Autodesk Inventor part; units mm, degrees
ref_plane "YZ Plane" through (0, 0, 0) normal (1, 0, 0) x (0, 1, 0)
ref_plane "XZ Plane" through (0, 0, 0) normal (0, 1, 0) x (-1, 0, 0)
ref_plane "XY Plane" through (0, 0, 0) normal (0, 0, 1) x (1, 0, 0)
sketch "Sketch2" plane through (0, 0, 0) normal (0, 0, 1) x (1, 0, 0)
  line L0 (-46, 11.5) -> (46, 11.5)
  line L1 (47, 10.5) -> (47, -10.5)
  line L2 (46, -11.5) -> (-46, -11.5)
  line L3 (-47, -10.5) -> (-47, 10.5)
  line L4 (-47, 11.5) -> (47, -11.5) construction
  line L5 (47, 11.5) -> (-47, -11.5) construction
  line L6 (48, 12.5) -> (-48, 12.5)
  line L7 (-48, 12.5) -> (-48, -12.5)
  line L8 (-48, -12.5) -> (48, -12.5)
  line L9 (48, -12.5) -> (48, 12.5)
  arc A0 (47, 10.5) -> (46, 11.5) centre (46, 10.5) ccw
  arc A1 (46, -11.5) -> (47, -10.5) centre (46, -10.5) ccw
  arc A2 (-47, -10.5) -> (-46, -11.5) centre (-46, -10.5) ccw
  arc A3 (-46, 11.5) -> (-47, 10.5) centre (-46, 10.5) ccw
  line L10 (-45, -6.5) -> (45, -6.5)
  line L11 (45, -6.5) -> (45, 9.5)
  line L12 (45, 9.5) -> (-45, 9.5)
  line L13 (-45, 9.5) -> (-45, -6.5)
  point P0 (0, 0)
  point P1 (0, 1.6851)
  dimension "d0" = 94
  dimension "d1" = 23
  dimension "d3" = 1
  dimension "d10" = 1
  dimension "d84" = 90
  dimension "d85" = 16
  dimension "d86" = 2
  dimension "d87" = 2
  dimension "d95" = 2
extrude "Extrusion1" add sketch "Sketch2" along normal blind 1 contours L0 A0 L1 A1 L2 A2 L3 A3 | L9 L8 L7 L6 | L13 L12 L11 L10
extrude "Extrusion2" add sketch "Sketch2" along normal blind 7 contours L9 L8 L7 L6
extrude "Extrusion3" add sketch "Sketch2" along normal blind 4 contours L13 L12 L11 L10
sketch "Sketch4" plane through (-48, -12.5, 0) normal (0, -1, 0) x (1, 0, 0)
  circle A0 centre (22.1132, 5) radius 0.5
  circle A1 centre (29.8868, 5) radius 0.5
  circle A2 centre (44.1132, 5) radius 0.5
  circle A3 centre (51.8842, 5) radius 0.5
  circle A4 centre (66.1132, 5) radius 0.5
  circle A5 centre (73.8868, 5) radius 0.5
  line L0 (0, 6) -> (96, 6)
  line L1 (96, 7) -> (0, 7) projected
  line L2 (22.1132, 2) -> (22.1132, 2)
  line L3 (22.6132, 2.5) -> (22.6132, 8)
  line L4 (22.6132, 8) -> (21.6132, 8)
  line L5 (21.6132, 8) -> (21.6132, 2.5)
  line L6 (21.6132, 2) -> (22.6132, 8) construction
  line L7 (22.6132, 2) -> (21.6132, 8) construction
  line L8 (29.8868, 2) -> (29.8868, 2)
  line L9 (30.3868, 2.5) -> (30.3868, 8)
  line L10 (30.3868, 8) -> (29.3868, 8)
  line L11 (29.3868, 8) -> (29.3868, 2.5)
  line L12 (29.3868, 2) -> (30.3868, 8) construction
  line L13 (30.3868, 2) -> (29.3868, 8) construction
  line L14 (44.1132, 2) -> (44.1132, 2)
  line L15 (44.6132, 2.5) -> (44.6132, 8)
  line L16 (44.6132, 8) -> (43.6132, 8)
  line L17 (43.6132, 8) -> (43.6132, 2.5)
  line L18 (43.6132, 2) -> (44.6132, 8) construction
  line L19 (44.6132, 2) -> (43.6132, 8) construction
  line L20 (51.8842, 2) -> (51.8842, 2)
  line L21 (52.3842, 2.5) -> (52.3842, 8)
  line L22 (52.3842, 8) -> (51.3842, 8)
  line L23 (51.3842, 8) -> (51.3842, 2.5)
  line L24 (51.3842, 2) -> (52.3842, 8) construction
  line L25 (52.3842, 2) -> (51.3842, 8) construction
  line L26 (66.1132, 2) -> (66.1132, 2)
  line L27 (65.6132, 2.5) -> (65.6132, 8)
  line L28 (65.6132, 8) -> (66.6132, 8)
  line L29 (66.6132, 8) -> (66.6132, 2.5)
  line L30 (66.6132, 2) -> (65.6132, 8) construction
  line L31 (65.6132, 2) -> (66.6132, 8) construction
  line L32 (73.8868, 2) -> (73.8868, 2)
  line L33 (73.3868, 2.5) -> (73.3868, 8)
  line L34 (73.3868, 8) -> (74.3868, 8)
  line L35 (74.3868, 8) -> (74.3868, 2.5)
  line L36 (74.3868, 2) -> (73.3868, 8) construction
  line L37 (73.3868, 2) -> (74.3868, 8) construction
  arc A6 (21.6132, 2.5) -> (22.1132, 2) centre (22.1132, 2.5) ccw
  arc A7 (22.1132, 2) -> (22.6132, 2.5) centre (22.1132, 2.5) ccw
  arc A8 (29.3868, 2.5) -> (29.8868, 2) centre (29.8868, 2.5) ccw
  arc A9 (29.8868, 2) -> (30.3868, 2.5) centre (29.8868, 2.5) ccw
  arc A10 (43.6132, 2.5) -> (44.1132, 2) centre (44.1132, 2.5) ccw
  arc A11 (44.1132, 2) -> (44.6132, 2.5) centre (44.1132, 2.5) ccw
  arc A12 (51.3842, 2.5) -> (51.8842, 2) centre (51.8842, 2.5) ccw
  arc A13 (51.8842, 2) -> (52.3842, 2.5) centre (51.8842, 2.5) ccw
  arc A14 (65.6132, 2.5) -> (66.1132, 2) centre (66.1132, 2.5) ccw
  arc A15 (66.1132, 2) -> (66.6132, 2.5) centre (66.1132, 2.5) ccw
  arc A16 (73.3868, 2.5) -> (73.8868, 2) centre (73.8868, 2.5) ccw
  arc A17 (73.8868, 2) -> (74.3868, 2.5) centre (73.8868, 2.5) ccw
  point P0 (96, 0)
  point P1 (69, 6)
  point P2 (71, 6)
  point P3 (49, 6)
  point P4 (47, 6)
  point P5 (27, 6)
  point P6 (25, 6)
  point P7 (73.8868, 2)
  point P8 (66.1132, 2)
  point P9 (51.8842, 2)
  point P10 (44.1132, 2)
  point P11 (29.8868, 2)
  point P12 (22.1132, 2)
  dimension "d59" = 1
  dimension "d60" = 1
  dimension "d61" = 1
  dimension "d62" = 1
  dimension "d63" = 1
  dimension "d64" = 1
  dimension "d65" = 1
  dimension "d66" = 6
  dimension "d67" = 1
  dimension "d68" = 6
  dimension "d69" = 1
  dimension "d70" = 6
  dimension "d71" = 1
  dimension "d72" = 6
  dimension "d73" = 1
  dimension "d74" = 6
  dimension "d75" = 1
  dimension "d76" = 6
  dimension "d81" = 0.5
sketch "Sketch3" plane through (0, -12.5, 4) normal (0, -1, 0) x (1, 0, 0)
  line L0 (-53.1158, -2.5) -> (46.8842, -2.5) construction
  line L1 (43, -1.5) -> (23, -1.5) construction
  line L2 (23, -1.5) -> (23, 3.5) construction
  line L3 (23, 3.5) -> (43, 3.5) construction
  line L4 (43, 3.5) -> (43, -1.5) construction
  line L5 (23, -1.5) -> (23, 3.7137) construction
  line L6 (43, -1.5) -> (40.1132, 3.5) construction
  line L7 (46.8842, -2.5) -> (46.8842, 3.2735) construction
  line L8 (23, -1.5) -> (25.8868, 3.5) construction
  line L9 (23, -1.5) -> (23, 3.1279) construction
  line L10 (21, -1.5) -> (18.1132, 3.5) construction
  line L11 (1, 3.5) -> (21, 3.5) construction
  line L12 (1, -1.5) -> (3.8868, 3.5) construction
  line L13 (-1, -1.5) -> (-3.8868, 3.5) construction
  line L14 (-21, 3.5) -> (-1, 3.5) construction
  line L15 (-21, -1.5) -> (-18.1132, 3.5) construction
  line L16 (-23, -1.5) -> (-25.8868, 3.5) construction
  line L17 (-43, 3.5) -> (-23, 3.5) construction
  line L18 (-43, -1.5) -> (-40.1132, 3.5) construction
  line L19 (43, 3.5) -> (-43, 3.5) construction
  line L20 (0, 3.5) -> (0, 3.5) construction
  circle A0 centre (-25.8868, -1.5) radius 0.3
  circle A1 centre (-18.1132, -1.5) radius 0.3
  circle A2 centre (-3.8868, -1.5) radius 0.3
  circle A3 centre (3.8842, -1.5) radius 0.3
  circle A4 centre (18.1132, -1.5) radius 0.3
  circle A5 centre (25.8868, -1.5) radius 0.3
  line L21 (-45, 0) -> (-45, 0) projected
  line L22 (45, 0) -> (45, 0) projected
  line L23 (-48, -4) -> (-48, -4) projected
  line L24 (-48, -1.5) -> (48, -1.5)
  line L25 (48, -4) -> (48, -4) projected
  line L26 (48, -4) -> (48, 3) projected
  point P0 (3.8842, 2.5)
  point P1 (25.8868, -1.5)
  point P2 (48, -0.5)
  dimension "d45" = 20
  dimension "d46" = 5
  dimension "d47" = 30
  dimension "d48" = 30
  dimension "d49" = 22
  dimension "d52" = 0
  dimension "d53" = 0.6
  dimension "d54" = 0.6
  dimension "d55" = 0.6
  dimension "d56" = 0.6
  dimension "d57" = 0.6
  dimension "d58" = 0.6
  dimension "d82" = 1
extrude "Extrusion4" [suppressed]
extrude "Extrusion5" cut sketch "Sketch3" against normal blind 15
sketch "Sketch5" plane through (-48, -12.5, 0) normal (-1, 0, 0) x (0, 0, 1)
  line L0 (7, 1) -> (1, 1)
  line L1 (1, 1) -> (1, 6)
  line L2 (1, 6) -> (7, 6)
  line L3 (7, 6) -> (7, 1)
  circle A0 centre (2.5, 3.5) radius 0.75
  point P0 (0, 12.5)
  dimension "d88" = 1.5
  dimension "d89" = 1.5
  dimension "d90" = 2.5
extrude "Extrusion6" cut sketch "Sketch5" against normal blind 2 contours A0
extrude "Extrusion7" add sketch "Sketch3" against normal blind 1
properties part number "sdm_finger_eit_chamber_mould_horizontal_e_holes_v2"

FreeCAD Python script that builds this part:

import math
import FreeCAD as App
import Part
import Sketcher

V = App.Vector

doc = App.newDocument("Part")
body = doc.addObject("PartDesign::Body", "Body")

sketch1 = doc.addObject("Sketcher::SketchObject", "Sketch")
body.addObject(sketch1)
sketch1.AttachmentSupport = (doc.XY_Plane, [""])
sketch1.MapMode = "FlatFace"
sketch1.addGeometry([
    Part.LineSegment(V(48, -12.5, 0), V(48, 12.5, 0)),
    Part.LineSegment(V(48, 12.5, 0), V(-48, 12.5, 0)),
    Part.LineSegment(V(-48, 12.5, 0), V(-48, -12.5, 0)),
    Part.LineSegment(V(-48, -12.5, 0), V(48, -12.5, 0)),
], False)
sketch1.addConstraint([
    Sketcher.Constraint("Coincident", 0, 2, 1, 1),
    Sketcher.Constraint("Coincident", 1, 2, 2, 1),
    Sketcher.Constraint("Coincident", 2, 2, 3, 1),
    Sketcher.Constraint("Coincident", 3, 2, 0, 1),
    Sketcher.Constraint("Vertical", 0),
    Sketcher.Constraint("Horizontal", 1),
    Sketcher.Constraint("Vertical", 2),
    Sketcher.Constraint("Horizontal", 3),
    Sketcher.Constraint("Symmetric", 0, 2, 2, 2, -1, 1),
    Sketcher.Constraint("DistanceX", 1, 2, 1, 1, 96.0),
    Sketcher.Constraint("DistanceY", 0, 1, 0, 2, 25.0),
])
pad1 = doc.addObject("PartDesign::Pad", "Pad")
body.addObject(pad1)
pad1.Profile = sketch1
pad1.Length = 1

sketch2 = doc.addObject("Sketcher::SketchObject", "Sketch001")
body.addObject(sketch2)
sketch2.AttachmentSupport = (doc.XY_Plane, [""])
sketch2.MapMode = "FlatFace"
sketch2.addGeometry([
    Part.LineSegment(V(48, -12.5, 0), V(48, 12.5, 0)),
    Part.LineSegment(V(48, 12.5, 0), V(-48, 12.5, 0)),
    Part.LineSegment(V(-48, 12.5, 0), V(-48, -12.5, 0)),
    Part.LineSegment(V(-48, -12.5, 0), V(48, -12.5, 0)),
    Part.ArcOfCircle(Part.Circle(V(-46, 10.5, 0), V(0, 0, 1), 1), math.radians(90), math.radians(180)),
    Part.LineSegment(V(-46, 11.5, 0), V(46, 11.5, 0)),
    Part.ArcOfCircle(Part.Circle(V(46, 10.5, 0), V(0, 0, 1), 1), math.radians(0), math.radians(90)),
    Part.LineSegment(V(47, 10.5, 0), V(47, -10.5, 0)),
    Part.ArcOfCircle(Part.Circle(V(46, -10.5, 0), V(0, 0, 1), 1), math.radians(-90), math.radians(0)),
    Part.LineSegment(V(46, -11.5, 0), V(-46, -11.5, 0)),
    Part.ArcOfCircle(Part.Circle(V(-46, -10.5, 0), V(0, 0, 1), 1), math.radians(180), math.radians(270)),
    Part.LineSegment(V(-47, -10.5, 0), V(-47, 10.5, 0)),
], False)
sketch2.addConstraint([
    Sketcher.Constraint("Coincident", 0, 2, 1, 1),
    Sketcher.Constraint("Coincident", 1, 2, 2, 1),
    Sketcher.Constraint("Coincident", 2, 2, 3, 1),
    Sketcher.Constraint("Coincident", 3, 2, 0, 1),
    Sketcher.Constraint("Tangent", 4, 1, 5, 1),
    Sketcher.Constraint("Tangent", 5, 2, 6, 2),
    Sketcher.Constraint("Tangent", 6, 1, 7, 1),
    Sketcher.Constraint("Tangent", 7, 2, 8, 2),
    Sketcher.Constraint("Tangent", 8, 1, 9, 1),
    Sketcher.Constraint("Tangent", 9, 2, 10, 2),
    Sketcher.Constraint("Tangent", 10, 1, 11, 1),
    Sketcher.Constraint("Tangent", 11, 2, 4, 2),
    Sketcher.Constraint("Vertical", 0),
    Sketcher.Constraint("Horizontal", 1),
    Sketcher.Constraint("Vertical", 2),
    Sketcher.Constraint("Horizontal", 3),
    Sketcher.Constraint("Horizontal", 5),
    Sketcher.Constraint("Vertical", 7),
    Sketcher.Constraint("Horizontal", 9),
    Sketcher.Constraint("Vertical", 11),
    Sketcher.Constraint("Equal", 4, 6),
    Sketcher.Constraint("Equal", 6, 8),
    Sketcher.Constraint("Equal", 8, 10),
    Sketcher.Constraint("Symmetric", 4, 3, 8, 3, -1, 1),
    Sketcher.Constraint("Symmetric", 0, 2, 2, 2, -1, 1),
    Sketcher.Constraint("Radius", 4, 1.0),
    Sketcher.Constraint("DistanceX", 6, 3, 0, 2, 2.0),
    Sketcher.Constraint("DistanceY", 6, 3, 0, 2, 2.0),
    Sketcher.Constraint("DistanceY", 8, 3, 0, 2, 23.0),
    Sketcher.Constraint("DistanceX", 4, 3, 0, 2, 94.0),
])
pad2 = doc.addObject("PartDesign::Pad", "Pad001")
body.addObject(pad2)
pad2.Profile = sketch2
pad2.Length = 7

sketch3 = doc.addObject("Sketcher::SketchObject", "Sketch002")
body.addObject(sketch3)
sketch3.AttachmentSupport = (doc.XY_Plane, [""])
sketch3.MapMode = "FlatFace"
sketch3.addGeometry([
    Part.LineSegment(V(-45, 9.5, 0), V(-45, -6.5, 0)),
    Part.LineSegment(V(-45, -6.5, 0), V(45, -6.5, 0)),
    Part.LineSegment(V(45, -6.5, 0), V(45, 9.5, 0)),
    Part.LineSegment(V(45, 9.5, 0), V(-45, 9.5, 0)),
], False)
sketch3.addConstraint([
    Sketcher.Constraint("Coincident", 0, 2, 1, 1),
    Sketcher.Constraint("Coincident", 1, 2, 2, 1),
    Sketcher.Constraint("Coincident", 2, 2, 3, 1),
    Sketcher.Constraint("Coincident", 3, 2, 0, 1),
    Sketcher.Constraint("Vertical", 0),
    Sketcher.Constraint("Horizontal", 1),
    Sketcher.Constraint("Vertical", 2),
    Sketcher.Constraint("Horizontal", 3),
    Sketcher.Constraint("DistanceX", 1, 1, 1, 2, 90.0),
    Sketcher.Constraint("DistanceY", 0, 2, 0, 1, 16.0),
    Sketcher.Constraint("DistanceX", 0, 2, -1, 1, 45.0),
    Sketcher.Constraint("DistanceY", 0, 2, -1, 1, 6.5),
])
pad3 = doc.addObject("PartDesign::Pad", "Pad002")
body.addObject(pad3)
pad3.Profile = sketch3
pad3.Length = 4

sketch4 = doc.addObject("Sketcher::SketchObject", "Sketch003")
body.addObject(sketch4)
sketch4.AttachmentSupport = (doc.XZ_Plane, [""])
sketch4.MapMode = "FlatFace"
sketch4.AttachmentOffset = App.Placement(V(0, 0, 12.5), App.Rotation())
sketch4.addGeometry([
    Part.Circle(V(-25.8868, 2.5, 0), V(0, 0, 1), 0.3),
    Part.Circle(V(25.8868, 2.5, 0), V(0, 0, 1), 0.3),
    Part.Circle(V(18.1132, 2.5, 0), V(0, 0, 1), 0.3),
    Part.Circle(V(3.8842, 2.5, 0), V(0, 0, 1), 0.3),
    Part.Circle(V(-3.8868, 2.5, 0), V(0, 0, 1), 0.3),
    Part.Circle(V(-18.1132, 2.5, 0), V(0, 0, 1), 0.3),
], False)
sketch4.addConstraint([
    Sketcher.Constraint("Equal", 0, 1),
    Sketcher.Constraint("Equal", 1, 2),
    Sketcher.Constraint("Equal", 2, 3),
    Sketcher.Constraint("Equal", 3, 4),
    Sketcher.Constraint("Equal", 4, 5),
    Sketcher.Constraint("Symmetric", 0, 3, 1, 3, -2),
    Sketcher.Constraint("Symmetric", 2, 3, 5, 3, -2),
    Sketcher.Constraint("Horizontal", 1, 3, 2, 3),
    Sketcher.Constraint("Horizontal", 2, 3, 3, 3),
    Sketcher.Constraint("Horizontal", 3, 3, 4, 3),
    Sketcher.Constraint("Diameter", 0, 0.6),
    Sketcher.Constraint("DistanceX", 0, 3, 4, 3, 22.0),
    Sketcher.Constraint("DistanceX", 4, 3, 2, 3, 22.0),
    Sketcher.Constraint("DistanceY", -1, 1, 0, 3, 2.5),
    Sketcher.Constraint("DistanceX", 3, 3, 2, 3, 14.229),
    Sketcher.Constraint("DistanceX", 0, 3, -1, 1, 25.8868),
])
pocket1 = doc.addObject("PartDesign::Pocket", "Pocket")
body.addObject(pocket1)
pocket1.Profile = sketch4
pocket1.Length = 15

sketch5 = doc.addObject("Sketcher::SketchObject", "Sketch004")
body.addObject(sketch5)
sketch5.AttachmentSupport = (doc.YZ_Plane, [""])
sketch5.MapMode = "FlatFace"
sketch5.AttachmentOffset = App.Placement(V(0, 0, -48), App.Rotation())
sketch5.addGeometry(Part.Circle(V(-9, 2.5, 0), V(0, 0, 1), 0.75), False)
sketch5.addConstraint([
    Sketcher.Constraint("Diameter", 0, 1.5),
    Sketcher.Constraint("DistanceY", -1, 1, 0, 3, 2.5),
    Sketcher.Constraint("DistanceX", 0, 3, -1, 1, 9.0),
])
pocket2 = doc.addObject("PartDesign::Pocket", "Pocket001")
body.addObject(pocket2)
pocket2.Profile = sketch5
pocket2.Length = 2
pocket2.Reversed = True

sketch6 = doc.addObject("Sketcher::SketchObject", "Sketch005")
body.addObject(sketch6)
sketch6.AttachmentSupport = (doc.XZ_Plane, [""])
sketch6.MapMode = "FlatFace"
sketch6.AttachmentOffset = App.Placement(V(0, 0, 12.5), App.Rotation())
sketch6.addGeometry([
    Part.Circle(V(-25.8868, 2.5, 0), V(0, 0, 1), 0.3),
    Part.Circle(V(25.8868, 2.5, 0), V(0, 0, 1), 0.3),
    Part.Circle(V(18.1132, 2.5, 0), V(0, 0, 1), 0.3),
    Part.Circle(V(3.8842, 2.5, 0), V(0, 0, 1), 0.3),
    Part.Circle(V(-3.8868, 2.5, 0), V(0, 0, 1), 0.3),
    Part.Circle(V(-18.1132, 2.5, 0), V(0, 0, 1), 0.3),
], False)
sketch6.addConstraint([
    Sketcher.Constraint("Equal", 0, 1),
    Sketcher.Constraint("Equal", 1, 2),
    Sketcher.Constraint("Equal", 2, 3),
    Sketcher.Constraint("Equal", 3, 4),
    Sketcher.Constraint("Equal", 4, 5),
    Sketcher.Constraint("Symmetric", 0, 3, 1, 3, -2),
    Sketcher.Constraint("Symmetric", 2, 3, 5, 3, -2),
    Sketcher.Constraint("Horizontal", 1, 3, 2, 3),
    Sketcher.Constraint("Horizontal", 2, 3, 3, 3),
    Sketcher.Constraint("Horizontal", 3, 3, 4, 3),
    Sketcher.Constraint("Diameter", 0, 0.6),
    Sketcher.Constraint("DistanceX", 0, 3, 4, 3, 22.0),
    Sketcher.Constraint("DistanceX", 4, 3, 2, 3, 22.0),
    Sketcher.Constraint("DistanceY", -1, 1, 0, 3, 2.5),
    Sketcher.Constraint("DistanceX", 3, 3, 2, 3, 14.229),
    Sketcher.Constraint("DistanceX", 0, 3, -1, 1, 25.8868),
])
pad4 = doc.addObject("PartDesign::Pad", "Pad003")
body.addObject(pad4)
pad4.Profile = sketch6
pad4.Length = 1
pad4.Reversed = True

doc.recompute()
